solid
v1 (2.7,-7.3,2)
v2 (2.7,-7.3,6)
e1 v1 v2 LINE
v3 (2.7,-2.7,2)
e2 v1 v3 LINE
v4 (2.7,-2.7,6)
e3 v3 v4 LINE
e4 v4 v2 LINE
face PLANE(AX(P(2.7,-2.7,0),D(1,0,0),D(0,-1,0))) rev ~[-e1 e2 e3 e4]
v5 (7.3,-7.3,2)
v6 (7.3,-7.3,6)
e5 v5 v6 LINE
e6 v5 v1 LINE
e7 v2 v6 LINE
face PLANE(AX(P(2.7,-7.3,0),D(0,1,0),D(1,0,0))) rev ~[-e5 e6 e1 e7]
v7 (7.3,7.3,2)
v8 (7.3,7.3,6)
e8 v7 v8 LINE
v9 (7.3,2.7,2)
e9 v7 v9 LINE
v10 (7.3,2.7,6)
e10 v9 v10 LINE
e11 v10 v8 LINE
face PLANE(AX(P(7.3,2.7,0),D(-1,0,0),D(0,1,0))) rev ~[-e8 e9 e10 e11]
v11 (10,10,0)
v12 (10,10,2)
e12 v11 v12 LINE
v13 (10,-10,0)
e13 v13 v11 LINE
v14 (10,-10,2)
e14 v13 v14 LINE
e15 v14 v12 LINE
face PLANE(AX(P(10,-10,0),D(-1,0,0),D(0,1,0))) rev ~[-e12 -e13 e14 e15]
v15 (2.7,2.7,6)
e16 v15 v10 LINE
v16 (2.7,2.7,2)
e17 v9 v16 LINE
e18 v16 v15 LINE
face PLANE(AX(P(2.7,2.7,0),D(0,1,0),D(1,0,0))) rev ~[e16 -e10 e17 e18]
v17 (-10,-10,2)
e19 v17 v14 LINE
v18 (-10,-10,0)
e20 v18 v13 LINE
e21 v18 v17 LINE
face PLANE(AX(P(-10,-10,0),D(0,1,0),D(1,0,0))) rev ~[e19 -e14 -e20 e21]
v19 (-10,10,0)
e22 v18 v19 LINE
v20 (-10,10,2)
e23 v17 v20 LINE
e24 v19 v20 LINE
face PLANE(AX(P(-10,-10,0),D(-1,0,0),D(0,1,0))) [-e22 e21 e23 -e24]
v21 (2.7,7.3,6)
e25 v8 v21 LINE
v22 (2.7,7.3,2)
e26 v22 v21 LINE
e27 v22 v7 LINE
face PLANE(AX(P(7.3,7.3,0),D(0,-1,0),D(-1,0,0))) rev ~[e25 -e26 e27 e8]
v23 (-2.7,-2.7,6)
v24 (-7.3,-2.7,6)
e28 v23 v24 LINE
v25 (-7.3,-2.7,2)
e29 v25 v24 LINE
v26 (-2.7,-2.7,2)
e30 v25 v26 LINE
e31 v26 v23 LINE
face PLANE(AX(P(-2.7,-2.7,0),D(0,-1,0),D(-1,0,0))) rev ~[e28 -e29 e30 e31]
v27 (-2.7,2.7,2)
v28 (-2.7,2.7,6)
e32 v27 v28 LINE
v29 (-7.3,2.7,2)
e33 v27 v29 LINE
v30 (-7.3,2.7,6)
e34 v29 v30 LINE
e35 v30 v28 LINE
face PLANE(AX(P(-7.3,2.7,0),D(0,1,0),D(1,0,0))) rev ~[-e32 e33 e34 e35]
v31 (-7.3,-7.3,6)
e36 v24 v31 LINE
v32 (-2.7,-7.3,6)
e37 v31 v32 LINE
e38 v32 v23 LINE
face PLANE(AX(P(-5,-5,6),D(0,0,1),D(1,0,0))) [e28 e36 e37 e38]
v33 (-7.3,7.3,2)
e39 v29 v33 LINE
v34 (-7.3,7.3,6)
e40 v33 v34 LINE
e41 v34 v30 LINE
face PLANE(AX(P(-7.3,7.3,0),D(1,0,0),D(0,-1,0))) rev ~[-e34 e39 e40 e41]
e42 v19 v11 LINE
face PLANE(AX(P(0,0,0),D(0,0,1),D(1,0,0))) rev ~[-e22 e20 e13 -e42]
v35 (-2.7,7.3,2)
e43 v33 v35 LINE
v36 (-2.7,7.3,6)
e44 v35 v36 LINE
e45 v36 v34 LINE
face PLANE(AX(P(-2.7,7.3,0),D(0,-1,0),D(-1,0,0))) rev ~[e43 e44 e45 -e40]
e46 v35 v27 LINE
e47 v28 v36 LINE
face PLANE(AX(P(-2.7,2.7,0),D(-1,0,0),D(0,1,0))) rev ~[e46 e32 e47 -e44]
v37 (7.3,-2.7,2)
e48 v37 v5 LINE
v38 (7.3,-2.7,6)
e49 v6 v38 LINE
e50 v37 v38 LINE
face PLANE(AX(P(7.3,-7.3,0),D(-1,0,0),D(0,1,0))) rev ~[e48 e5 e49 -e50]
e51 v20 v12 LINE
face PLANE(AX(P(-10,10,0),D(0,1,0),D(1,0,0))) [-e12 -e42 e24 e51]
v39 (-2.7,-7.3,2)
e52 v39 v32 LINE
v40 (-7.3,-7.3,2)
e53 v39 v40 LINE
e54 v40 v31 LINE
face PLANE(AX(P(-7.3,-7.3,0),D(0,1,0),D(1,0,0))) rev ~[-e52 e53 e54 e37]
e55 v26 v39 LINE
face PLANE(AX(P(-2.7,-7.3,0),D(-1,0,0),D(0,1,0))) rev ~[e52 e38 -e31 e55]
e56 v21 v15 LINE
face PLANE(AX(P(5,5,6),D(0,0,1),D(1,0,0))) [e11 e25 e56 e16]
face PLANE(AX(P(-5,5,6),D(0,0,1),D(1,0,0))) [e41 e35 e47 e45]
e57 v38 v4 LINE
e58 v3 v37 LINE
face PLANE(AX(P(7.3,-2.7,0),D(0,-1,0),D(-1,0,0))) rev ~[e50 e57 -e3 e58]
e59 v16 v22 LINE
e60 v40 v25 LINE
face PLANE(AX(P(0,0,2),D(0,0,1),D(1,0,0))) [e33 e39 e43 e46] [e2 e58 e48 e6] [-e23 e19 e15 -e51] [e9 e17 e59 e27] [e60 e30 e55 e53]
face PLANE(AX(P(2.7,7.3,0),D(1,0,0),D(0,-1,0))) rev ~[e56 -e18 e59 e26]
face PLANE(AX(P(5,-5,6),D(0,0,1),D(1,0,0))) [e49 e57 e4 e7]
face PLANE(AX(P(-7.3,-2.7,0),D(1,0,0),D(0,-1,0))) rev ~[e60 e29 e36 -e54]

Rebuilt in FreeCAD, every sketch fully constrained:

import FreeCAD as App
import Part
import Sketcher
from FreeCAD import Vector

doc = App.newDocument("Part")
body = doc.addObject("PartDesign::Body", "Body")

# Sketch on XY plane
sketch1 = body.newObject("Sketcher::SketchObject", "Sketch")
sketch1.AttachmentSupport = (doc.getObject("XY_Plane"), [""])
sketch1.MapMode = "FlatFace"
sketch1.addGeometry([
    Part.LineSegment(Vector(-10, 10, 0), Vector(-10, -10, 0)),  # 0
    Part.LineSegment(Vector(-10, -10, 0), Vector(10, -10, 0)),  # 1
    Part.LineSegment(Vector(10, -10, 0), Vector(10, 10, 0)),  # 2
    Part.LineSegment(Vector(10, 10, 0), Vector(-10, 10, 0)),  # 3
    Part.LineSegment(Vector(-7.3, -7.3, 0), Vector(-7.3, -2.7, 0)),  # 4
    Part.LineSegment(Vector(-7.3, -2.7, 0), Vector(-2.7, -2.7, 0)),  # 5
    Part.LineSegment(Vector(-2.7, -2.7, 0), Vector(-2.7, -7.3, 0)),  # 6
    Part.LineSegment(Vector(-2.7, -7.3, 0), Vector(-7.3, -7.3, 0)),  # 7
    Part.LineSegment(Vector(2.7, -7.3, 0), Vector(2.7, -2.7, 0)),  # 8
    Part.LineSegment(Vector(2.7, -2.7, 0), Vector(7.3, -2.7, 0)),  # 9
    Part.LineSegment(Vector(7.3, -2.7, 0), Vector(7.3, -7.3, 0)),  # 10
    Part.LineSegment(Vector(7.3, -7.3, 0), Vector(2.7, -7.3, 0)),  # 11
    Part.LineSegment(Vector(-2.7, 7.3, 0), Vector(-2.7, 2.7, 0)),  # 12
    Part.LineSegment(Vector(-2.7, 2.7, 0), Vector(-7.3, 2.7, 0)),  # 13
    Part.LineSegment(Vector(-7.3, 2.7, 0), Vector(-7.3, 7.3, 0)),  # 14
    Part.LineSegment(Vector(-7.3, 7.3, 0), Vector(-2.7, 7.3, 0)),  # 15
    Part.LineSegment(Vector(7.3, 7.3, 0), Vector(7.3, 2.7, 0)),  # 16
    Part.LineSegment(Vector(7.3, 2.7, 0), Vector(2.7, 2.7, 0)),  # 17
    Part.LineSegment(Vector(2.7, 2.7, 0), Vector(2.7, 7.3, 0)),  # 18
    Part.LineSegment(Vector(2.7, 7.3, 0), Vector(7.3, 7.3, 0)),  # 19
], False)
sketch1.addConstraint([
    Sketcher.Constraint("Coincident", 0, 2, 1, 1),
    Sketcher.Constraint("Coincident", 1, 2, 2, 1),
    Sketcher.Constraint("Coincident", 2, 2, 3, 1),
    Sketcher.Constraint("Coincident", 3, 2, 0, 1),
    Sketcher.Constraint("Coincident", 4, 2, 5, 1),
    Sketcher.Constraint("Coincident", 5, 2, 6, 1),
    Sketcher.Constraint("Coincident", 6, 2, 7, 1),
    Sketcher.Constraint("Coincident", 7, 2, 4, 1),
    Sketcher.Constraint("Coincident", 8, 2, 9, 1),
    Sketcher.Constraint("Coincident", 9, 2, 10, 1),
    Sketcher.Constraint("Coincident", 10, 2, 11, 1),
    Sketcher.Constraint("Coincident", 11, 2, 8, 1),
    Sketcher.Constraint("Coincident", 12, 2, 13, 1),
    Sketcher.Constraint("Coincident", 13, 2, 14, 1),
    Sketcher.Constraint("Coincident", 14, 2, 15, 1),
    Sketcher.Constraint("Coincident", 15, 2, 12, 1),
    Sketcher.Constraint("Coincident", 16, 2, 17, 1),
    Sketcher.Constraint("Coincident", 17, 2, 18, 1),
    Sketcher.Constraint("Coincident", 18, 2, 19, 1),
    Sketcher.Constraint("Coincident", 19, 2, 16, 1),
    Sketcher.Constraint("Vertical", 0),
    Sketcher.Constraint("Horizontal", 1),
    Sketcher.Constraint("Vertical", 2),
    Sketcher.Constraint("Horizontal", 3),
    Sketcher.Constraint("Vertical", 4),
    Sketcher.Constraint("Horizontal", 5),
    Sketcher.Constraint("Vertical", 6),
    Sketcher.Constraint("Horizontal", 7),
    Sketcher.Constraint("Vertical", 8),
    Sketcher.Constraint("Horizontal", 9),
    Sketcher.Constraint("Vertical", 10),
    Sketcher.Constraint("Horizontal", 11),
    Sketcher.Constraint("Vertical", 12),
    Sketcher.Constraint("Horizontal", 13),
    Sketcher.Constraint("Vertical", 14),
    Sketcher.Constraint("Horizontal", 15),
    Sketcher.Constraint("Vertical", 16),
    Sketcher.Constraint("Horizontal", 17),
    Sketcher.Constraint("Vertical", 18),
    Sketcher.Constraint("Horizontal", 19),
    Sketcher.Constraint("Symmetric", 0, 2, 2, 2, -1, 1),
    Sketcher.Constraint("Symmetric", 8, 2, 12, 2, -1, 1),
    Sketcher.Constraint("Symmetric", 10, 2, 14, 2, -1, 1),
    Sketcher.Constraint("Symmetric", 4, 2, 16, 2, -1, 1),
    Sketcher.Constraint("Symmetric", 6, 2, 18, 2, -1, 1),
    Sketcher.Constraint("Symmetric", 5, 2, 8, 2, -2),
    Sketcher.Constraint("Symmetric", 7, 2, 10, 2, -2),
    Sketcher.Constraint("Equal", 3, 0),
    Sketcher.Constraint("Equal", 19, 4),
    Sketcher.Constraint("DistanceX", 1, 1, 1, 2, 20.0),
    Sketcher.Constraint("DistanceX", 5, 1, 5, 2, 4.6),
    Sketcher.Constraint("DistanceX", 4, 2, 8, 2, 10.0),
    Sketcher.Constraint("DistanceY", 6, 2, 12, 2, 10.0),
])
pad1 = body.newObject("PartDesign::Pad", "Pad")
pad1.Profile = sketch1
pad1.Length = 2

# Sketch on XY plane
sketch2 = body.newObject("Sketcher::SketchObject", "Sketch001")
sketch2.AttachmentSupport = (doc.getObject("XY_Plane"), [""])
sketch2.MapMode = "FlatFace"
sketch2.addGeometry([
    Part.LineSegment(Vector(-7.3, 2.7, 0), Vector(-2.7, 2.7, 0)),  # 0
    Part.LineSegment(Vector(-2.7, 2.7, 0), Vector(-2.7, 7.3, 0)),  # 1
    Part.LineSegment(Vector(-2.7, 7.3, 0), Vector(-7.3, 7.3, 0)),  # 2
    Part.LineSegment(Vector(-7.3, 7.3, 0), Vector(-7.3, 2.7, 0)),  # 3
    Part.LineSegment(Vector(2.7, 2.7, 0), Vector(7.3, 2.7, 0)),  # 4
    Part.LineSegment(Vector(7.3, 2.7, 0), Vector(7.3, 7.3, 0)),  # 5
    Part.LineSegment(Vector(7.3, 7.3, 0), Vector(2.7, 7.3, 0)),  # 6
    Part.LineSegment(Vector(2.7, 7.3, 0), Vector(2.7, 2.7, 0)),  # 7
    Part.LineSegment(Vector(-2.7, -2.7, 0), Vector(-7.3, -2.7, 0)),  # 8
    Part.LineSegment(Vector(-7.3, -2.7, 0), Vector(-7.3, -7.3, 0)),  # 9
    Part.LineSegment(Vector(-7.3, -7.3, 0), Vector(-2.7, -7.3, 0)),  # 10
    Part.LineSegment(Vector(-2.7, -7.3, 0), Vector(-2.7, -2.7, 0)),  # 11
    Part.LineSegment(Vector(7.3, -2.7, 0), Vector(2.7, -2.7, 0)),  # 12
    Part.LineSegment(Vector(2.7, -2.7, 0), Vector(2.7, -7.3, 0)),  # 13
    Part.LineSegment(Vector(2.7, -7.3, 0), Vector(7.3, -7.3, 0)),  # 14
    Part.LineSegment(Vector(7.3, -7.3, 0), Vector(7.3, -2.7, 0)),  # 15
], False)
sketch2.addConstraint([
    Sketcher.Constraint("Coincident", 0, 2, 1, 1),
    Sketcher.Constraint("Coincident", 1, 2, 2, 1),
    Sketcher.Constraint("Coincident", 2, 2, 3, 1),
    Sketcher.Constraint("Coincident", 3, 2, 0, 1),
    Sketcher.Constraint("Coincident", 4, 2, 5, 1),
    Sketcher.Constraint("Coincident", 5, 2, 6, 1),
    Sketcher.Constraint("Coincident", 6, 2, 7, 1),
    Sketcher.Constraint("Coincident", 7, 2, 4, 1),
    Sketcher.Constraint("Coincident", 8, 2, 9, 1),
    Sketcher.Constraint("Coincident", 9, 2, 10, 1),
    Sketcher.Constraint("Coincident", 10, 2, 11, 1),
    Sketcher.Constraint("Coincident", 11, 2, 8, 1),
    Sketcher.Constraint("Coincident", 12, 2, 13, 1),
    Sketcher.Constraint("Coincident", 13, 2, 14, 1),
    Sketcher.Constraint("Coincident", 14, 2, 15, 1),
    Sketcher.Constraint("Coincident", 15, 2, 12, 1),
    Sketcher.Constraint("Horizontal", 0),
    Sketcher.Constraint("Vertical", 1),
    Sketcher.Constraint("Horizontal", 2),
    Sketcher.Constraint("Vertical", 3),
    Sketcher.Constraint("Horizontal", 4),
    Sketcher.Constraint("Vertical", 5),
    Sketcher.Constraint("Horizontal", 6),
    Sketcher.Constraint("Vertical", 7),
    Sketcher.Constraint("Horizontal", 8),
    Sketcher.Constraint("Vertical", 9),
    Sketcher.Constraint("Horizontal", 10),
    Sketcher.Constraint("Vertical", 11),
    Sketcher.Constraint("Horizontal", 12),
    Sketcher.Constraint("Vertical", 13),
    Sketcher.Constraint("Horizontal", 14),
    Sketcher.Constraint("Vertical", 15),
    Sketcher.Constraint("Symmetric", 4, 2, 8, 2, -1, 1),
    Sketcher.Constraint("Symmetric", 6, 2, 10, 2, -1, 1),
    Sketcher.Constraint("Symmetric", 0, 2, 12, 2, -1, 1),
    Sketcher.Constraint("Symmetric", 2, 2, 14, 2, -1, 1),
    Sketcher.Constraint("Symmetric", 3, 2, 4, 2, -2),
    Sketcher.Constraint("Symmetric", 1, 2, 6, 2, -2),
    Sketcher.Constraint("Equal", 14, 1),
    Sketcher.Constraint("DistanceX", 0, 1, 0, 2, 4.6),
    Sketcher.Constraint("DistanceX", 0, 2, 4, 2, 10.0),
    Sketcher.Constraint("DistanceY", 8, 2, 2, 2, 10.0),
])
pad2 = body.newObject("PartDesign::Pad", "Pad001")
pad2.Profile = sketch2
pad2.Length = 6

doc.recompute()
